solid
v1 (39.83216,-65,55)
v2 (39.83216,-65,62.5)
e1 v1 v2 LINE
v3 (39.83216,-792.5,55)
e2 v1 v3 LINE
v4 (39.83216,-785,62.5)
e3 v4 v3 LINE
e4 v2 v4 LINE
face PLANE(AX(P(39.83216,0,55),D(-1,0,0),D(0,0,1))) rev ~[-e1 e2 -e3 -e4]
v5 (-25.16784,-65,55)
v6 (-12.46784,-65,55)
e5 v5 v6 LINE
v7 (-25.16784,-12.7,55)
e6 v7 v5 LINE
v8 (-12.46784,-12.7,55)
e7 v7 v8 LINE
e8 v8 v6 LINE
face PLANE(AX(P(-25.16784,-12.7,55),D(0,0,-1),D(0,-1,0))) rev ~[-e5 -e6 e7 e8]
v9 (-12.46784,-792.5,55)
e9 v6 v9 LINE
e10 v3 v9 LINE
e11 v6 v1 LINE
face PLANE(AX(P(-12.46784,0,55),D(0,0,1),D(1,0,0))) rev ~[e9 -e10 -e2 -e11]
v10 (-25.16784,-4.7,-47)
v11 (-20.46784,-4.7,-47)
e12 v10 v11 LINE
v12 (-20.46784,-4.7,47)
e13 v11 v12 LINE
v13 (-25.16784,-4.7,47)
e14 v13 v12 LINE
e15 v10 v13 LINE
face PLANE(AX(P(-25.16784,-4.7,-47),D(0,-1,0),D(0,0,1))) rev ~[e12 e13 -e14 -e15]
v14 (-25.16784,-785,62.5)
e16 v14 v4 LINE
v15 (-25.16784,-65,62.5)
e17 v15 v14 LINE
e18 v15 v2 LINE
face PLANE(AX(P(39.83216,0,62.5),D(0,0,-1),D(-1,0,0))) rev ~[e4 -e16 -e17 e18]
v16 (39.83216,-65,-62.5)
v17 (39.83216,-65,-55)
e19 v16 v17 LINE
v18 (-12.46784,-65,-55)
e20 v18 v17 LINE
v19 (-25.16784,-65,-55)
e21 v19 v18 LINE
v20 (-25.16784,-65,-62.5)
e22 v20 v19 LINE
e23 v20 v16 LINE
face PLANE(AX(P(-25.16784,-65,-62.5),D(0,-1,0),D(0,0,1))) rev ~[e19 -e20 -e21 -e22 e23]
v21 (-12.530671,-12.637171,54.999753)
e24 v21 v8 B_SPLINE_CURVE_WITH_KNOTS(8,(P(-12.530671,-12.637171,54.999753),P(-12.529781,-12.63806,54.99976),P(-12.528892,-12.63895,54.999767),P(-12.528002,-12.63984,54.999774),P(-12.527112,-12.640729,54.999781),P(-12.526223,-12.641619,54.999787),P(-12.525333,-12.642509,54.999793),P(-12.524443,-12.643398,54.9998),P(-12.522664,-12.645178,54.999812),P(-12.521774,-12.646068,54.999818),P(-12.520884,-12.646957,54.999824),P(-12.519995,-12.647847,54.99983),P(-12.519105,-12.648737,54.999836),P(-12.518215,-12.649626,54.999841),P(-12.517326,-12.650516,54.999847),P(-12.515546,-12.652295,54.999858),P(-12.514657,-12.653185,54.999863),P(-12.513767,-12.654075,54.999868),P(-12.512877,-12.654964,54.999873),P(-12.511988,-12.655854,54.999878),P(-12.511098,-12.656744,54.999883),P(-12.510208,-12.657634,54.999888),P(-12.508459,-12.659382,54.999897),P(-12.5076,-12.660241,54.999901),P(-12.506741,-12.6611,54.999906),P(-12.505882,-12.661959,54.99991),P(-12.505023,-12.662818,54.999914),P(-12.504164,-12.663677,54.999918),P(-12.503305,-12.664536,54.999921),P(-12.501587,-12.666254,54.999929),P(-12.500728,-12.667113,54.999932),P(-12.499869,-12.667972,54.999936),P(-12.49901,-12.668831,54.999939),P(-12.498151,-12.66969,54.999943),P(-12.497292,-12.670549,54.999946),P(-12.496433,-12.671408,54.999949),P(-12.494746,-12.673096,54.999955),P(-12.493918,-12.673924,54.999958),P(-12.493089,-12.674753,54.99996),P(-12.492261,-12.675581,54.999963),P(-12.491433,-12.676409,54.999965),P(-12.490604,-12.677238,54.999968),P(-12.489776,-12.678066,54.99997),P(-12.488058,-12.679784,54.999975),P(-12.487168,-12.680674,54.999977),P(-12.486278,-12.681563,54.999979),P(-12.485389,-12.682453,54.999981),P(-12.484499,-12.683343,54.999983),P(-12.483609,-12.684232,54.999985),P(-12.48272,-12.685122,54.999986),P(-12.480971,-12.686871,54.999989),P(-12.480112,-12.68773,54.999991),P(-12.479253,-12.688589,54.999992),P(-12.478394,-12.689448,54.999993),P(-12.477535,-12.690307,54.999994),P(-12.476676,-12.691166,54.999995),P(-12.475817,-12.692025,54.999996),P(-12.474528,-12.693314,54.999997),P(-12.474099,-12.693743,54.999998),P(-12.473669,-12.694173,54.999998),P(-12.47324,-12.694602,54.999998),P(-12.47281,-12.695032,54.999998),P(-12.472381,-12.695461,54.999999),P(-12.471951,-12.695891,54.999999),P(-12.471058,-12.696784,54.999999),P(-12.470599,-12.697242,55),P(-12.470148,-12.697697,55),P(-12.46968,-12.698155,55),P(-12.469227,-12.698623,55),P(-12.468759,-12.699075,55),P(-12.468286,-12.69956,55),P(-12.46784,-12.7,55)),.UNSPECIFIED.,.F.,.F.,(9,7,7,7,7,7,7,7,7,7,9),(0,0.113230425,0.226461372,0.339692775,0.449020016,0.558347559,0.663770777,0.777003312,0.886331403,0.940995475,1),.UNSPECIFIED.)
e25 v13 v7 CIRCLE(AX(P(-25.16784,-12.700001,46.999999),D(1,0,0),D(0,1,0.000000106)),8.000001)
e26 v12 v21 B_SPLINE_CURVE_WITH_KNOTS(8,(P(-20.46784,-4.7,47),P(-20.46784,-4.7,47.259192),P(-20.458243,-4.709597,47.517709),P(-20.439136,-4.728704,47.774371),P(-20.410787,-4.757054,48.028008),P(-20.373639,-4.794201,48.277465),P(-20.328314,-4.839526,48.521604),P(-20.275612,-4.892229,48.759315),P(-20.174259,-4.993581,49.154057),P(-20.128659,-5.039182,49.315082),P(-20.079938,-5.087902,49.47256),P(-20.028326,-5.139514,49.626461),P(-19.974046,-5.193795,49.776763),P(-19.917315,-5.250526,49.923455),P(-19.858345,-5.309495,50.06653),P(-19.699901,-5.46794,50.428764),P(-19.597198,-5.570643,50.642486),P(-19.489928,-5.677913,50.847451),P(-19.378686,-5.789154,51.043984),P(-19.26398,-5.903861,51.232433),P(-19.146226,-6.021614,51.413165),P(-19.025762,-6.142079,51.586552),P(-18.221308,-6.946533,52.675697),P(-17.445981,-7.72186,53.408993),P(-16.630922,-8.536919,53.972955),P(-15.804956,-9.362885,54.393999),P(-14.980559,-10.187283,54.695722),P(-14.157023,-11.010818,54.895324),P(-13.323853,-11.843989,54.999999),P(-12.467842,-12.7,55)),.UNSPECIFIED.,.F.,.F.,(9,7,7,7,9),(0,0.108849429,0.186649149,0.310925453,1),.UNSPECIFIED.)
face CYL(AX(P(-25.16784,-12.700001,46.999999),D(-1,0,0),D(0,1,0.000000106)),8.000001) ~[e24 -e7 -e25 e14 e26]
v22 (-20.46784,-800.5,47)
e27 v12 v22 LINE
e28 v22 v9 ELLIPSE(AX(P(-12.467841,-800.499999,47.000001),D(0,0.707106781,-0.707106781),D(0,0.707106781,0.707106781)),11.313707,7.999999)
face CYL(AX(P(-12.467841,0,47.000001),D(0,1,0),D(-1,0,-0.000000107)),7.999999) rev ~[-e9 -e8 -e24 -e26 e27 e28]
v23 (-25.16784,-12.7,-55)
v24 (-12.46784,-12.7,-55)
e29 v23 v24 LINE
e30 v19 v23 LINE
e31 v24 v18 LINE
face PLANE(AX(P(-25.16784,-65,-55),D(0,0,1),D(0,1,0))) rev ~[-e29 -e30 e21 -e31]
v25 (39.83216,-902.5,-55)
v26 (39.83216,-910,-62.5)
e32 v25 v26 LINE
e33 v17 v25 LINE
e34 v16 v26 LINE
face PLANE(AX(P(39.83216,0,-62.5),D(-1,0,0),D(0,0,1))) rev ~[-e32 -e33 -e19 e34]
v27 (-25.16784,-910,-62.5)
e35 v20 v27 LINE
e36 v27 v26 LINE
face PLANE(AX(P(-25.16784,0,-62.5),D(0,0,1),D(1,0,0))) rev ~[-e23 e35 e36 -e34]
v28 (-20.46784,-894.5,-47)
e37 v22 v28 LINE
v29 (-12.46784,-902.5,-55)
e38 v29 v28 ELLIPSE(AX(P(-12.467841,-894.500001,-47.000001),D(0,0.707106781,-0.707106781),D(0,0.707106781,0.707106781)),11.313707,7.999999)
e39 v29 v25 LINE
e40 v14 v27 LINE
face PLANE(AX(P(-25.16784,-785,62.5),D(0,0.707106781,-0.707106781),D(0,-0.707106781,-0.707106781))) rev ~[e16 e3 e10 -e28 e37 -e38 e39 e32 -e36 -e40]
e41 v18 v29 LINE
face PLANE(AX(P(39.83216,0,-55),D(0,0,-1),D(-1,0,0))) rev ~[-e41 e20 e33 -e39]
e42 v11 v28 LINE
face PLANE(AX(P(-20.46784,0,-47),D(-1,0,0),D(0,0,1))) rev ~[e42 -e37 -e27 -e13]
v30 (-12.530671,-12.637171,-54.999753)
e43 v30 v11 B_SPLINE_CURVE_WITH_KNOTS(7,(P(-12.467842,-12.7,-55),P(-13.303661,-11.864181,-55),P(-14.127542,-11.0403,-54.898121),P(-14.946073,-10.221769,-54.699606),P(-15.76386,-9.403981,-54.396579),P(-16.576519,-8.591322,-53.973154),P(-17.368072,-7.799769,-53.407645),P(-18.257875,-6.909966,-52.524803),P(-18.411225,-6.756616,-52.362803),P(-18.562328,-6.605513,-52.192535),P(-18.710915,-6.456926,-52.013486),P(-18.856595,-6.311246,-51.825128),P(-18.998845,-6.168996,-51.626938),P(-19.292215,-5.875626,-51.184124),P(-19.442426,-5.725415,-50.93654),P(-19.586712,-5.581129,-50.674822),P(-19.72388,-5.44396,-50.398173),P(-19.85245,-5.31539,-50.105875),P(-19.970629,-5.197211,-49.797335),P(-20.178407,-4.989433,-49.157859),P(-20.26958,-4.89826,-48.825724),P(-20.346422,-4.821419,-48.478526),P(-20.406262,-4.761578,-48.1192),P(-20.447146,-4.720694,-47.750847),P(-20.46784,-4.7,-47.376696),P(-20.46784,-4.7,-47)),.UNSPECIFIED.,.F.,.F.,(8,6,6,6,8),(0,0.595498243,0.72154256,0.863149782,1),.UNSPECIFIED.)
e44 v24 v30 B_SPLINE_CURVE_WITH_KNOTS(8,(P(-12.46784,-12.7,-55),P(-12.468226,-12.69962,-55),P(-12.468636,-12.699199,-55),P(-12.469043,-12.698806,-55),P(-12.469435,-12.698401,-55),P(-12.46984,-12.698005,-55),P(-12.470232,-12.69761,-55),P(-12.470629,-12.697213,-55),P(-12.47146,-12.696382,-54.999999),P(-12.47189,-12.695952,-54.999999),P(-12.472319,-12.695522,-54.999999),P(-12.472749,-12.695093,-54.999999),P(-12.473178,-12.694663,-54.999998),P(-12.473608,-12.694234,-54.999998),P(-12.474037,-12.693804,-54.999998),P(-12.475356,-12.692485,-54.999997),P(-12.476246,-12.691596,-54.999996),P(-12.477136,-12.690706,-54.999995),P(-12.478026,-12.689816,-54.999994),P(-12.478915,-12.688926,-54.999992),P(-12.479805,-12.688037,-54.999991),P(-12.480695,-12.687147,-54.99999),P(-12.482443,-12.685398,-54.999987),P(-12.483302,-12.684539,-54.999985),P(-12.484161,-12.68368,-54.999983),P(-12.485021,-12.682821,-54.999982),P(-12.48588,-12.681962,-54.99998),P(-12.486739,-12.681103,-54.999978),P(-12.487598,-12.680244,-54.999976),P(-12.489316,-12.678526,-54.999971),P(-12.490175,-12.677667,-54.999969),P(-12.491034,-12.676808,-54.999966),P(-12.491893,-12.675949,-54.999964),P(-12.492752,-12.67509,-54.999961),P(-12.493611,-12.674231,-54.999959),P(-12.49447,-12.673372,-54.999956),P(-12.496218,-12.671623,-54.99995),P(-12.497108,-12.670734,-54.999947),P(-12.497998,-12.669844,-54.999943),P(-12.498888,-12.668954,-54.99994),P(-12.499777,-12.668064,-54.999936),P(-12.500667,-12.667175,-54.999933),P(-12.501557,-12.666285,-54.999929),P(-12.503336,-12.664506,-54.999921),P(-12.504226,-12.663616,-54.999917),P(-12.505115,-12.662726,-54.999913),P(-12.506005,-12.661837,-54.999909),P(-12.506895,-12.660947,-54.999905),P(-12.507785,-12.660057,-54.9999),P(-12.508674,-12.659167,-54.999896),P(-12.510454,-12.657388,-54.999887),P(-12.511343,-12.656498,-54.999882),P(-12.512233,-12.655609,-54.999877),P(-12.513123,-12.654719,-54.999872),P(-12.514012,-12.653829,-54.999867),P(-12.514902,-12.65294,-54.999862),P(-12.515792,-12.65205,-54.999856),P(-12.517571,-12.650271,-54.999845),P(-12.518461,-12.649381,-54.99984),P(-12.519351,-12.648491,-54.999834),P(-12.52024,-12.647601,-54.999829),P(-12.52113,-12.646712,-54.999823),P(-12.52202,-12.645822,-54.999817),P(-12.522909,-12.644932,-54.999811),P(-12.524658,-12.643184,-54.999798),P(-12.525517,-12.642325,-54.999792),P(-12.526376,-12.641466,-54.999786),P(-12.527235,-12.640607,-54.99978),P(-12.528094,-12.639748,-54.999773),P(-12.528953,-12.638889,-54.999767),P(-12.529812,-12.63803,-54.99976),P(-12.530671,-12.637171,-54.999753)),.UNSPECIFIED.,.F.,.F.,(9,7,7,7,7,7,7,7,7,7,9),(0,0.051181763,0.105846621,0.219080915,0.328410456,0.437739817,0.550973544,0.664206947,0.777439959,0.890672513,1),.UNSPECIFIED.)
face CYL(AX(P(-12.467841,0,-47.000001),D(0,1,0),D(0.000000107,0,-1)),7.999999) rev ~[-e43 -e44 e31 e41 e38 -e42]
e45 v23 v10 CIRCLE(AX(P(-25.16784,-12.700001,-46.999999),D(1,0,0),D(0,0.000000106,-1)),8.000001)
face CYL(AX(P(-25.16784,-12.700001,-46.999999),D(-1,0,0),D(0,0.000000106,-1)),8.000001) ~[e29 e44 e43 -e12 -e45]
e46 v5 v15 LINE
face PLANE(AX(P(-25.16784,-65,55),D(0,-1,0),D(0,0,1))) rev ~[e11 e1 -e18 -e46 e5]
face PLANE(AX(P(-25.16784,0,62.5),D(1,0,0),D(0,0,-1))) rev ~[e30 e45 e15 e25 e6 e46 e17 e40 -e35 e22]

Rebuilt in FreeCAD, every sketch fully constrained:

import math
import FreeCAD as App
import Part
import Sketcher
from FreeCAD import Vector
Q = App.Units.Quantity

doc = App.newDocument("Part")
body = doc.addObject("PartDesign::Body", "Body")

sketch1 = body.newObject("Sketcher::SketchObject", "Sketch")
sketch1.AttachmentSupport = (doc.getObject("XZ_Plane"), [""])
sketch1.MapMode = "FlatFace"
sketch1.addGeometry(Part.LineSegment(Vector(-25, 62, 0), Vector(-25, -62, 0)), False)
sketch1.addGeometry(Part.LineSegment(Vector(-25, -62, 0), Vector(40, -62, 0)), False)
sketch1.addGeometry(Part.LineSegment(Vector(40, -62, 0), Vector(40, -55, 0)), False)
sketch1.addGeometry(Part.LineSegment(Vector(40, -55, 0), Vector(-12, -55, 0)), False)
sketch1.addGeometry(Part.ArcOfCircle(Part.Circle(Vector(-12, -47, 0), Vector(0, 0, 1), 8), math.radians(180), math.radians(270)), False)
sketch1.addGeometry(Part.LineSegment(Vector(-20, -47, 0), Vector(-20, 47, 0)), False)
sketch1.addGeometry(Part.ArcOfCircle(Part.Circle(Vector(-12, 47, 0), Vector(0, 0, 1), 8), math.radians(90), math.radians(180)), False)
sketch1.addGeometry(Part.LineSegment(Vector(-12, 55, 0), Vector(40, 55, 0)), False)
sketch1.addGeometry(Part.LineSegment(Vector(40, 55, 0), Vector(40, 62, 0)), False)
sketch1.addGeometry(Part.LineSegment(Vector(40, 62, 0), Vector(-25, 62, 0)), False)
sketch1.addConstraint(Sketcher.Constraint("Coincident", 0, 2, 1, 1))
sketch1.addConstraint(Sketcher.Constraint("Coincident", 1, 2, 2, 1))
sketch1.addConstraint(Sketcher.Constraint("Coincident", 2, 2, 3, 1))
sketch1.addConstraint(Sketcher.Constraint("Tangent", 3, 2, 4, 2))
sketch1.addConstraint(Sketcher.Constraint("Tangent", 4, 1, 5, 1))
sketch1.addConstraint(Sketcher.Constraint("Tangent", 5, 2, 6, 2))
sketch1.addConstraint(Sketcher.Constraint("Tangent", 6, 1, 7, 1))
sketch1.addConstraint(Sketcher.Constraint("Coincident", 7, 2, 8, 1))
sketch1.addConstraint(Sketcher.Constraint("Coincident", 8, 2, 9, 1))
sketch1.addConstraint(Sketcher.Constraint("Coincident", 9, 2, 0, 1))
sketch1.addConstraint(Sketcher.Constraint("Vertical", 0))
sketch1.addConstraint(Sketcher.Constraint("Horizontal", 1))
sketch1.addConstraint(Sketcher.Constraint("Vertical", 2))
sketch1.addConstraint(Sketcher.Constraint("Horizontal", 3))
sketch1.addConstraint(Sketcher.Constraint("Vertical", 5))
sketch1.addConstraint(Sketcher.Constraint("Horizontal", 7))
sketch1.addConstraint(Sketcher.Constraint("Vertical", 8))
sketch1.addConstraint(Sketcher.Constraint("Horizontal", 9))
sketch1.addConstraint(Sketcher.Constraint("Equal", 4, 6))
sketch1.addConstraint(Sketcher.Constraint("Symmetric", 2, 2, 7, 2, -1))
sketch1.addConstraint(Sketcher.Constraint("Equal", 2, 8))
sketch1.addConstraint(Sketcher.Constraint("Radius", 4, Q("7.999999 mm")))
sketch1.addConstraint(Sketcher.Constraint("DistanceX", 1, 1, 1, 2, Q("65 mm")))
sketch1.addConstraint(Sketcher.Constraint("DistanceY", 0, 2, 0, 1, Q("125 mm")))
sketch1.addConstraint(Sketcher.Constraint("DistanceY", 5, 1, 5, 2, Q("94 mm")))
sketch1.addConstraint(Sketcher.Constraint("DistanceX", 3, 2, 3, 1, Q("52.3 mm")))
sketch1.addConstraint(Sketcher.Constraint("DistanceX", 4, 3, -1, 1, Q("12.467841 mm")))
pad1 = body.newObject("PartDesign::Pad", "Pad")
pad1.Profile = sketch1
pad1.Length = 910

sketch2 = body.newObject("Sketcher::SketchObject", "Sketch001")
sketch2.AttachmentSupport = (doc.getObject("YZ_Plane"), [""])
sketch2.MapMode = "FlatFace"
sketch2.AttachmentOffset = App.Placement(Vector(0, 0, -25.16784), App.Rotation())
sketch2.addGeometry(Part.LineSegment(Vector(0, 62, 0), Vector(0, -62, 0)), False)
sketch2.addGeometry(Part.LineSegment(Vector(0, -62, 0), Vector(-65, -62, 0)), False)
sketch2.addGeometry(Part.LineSegment(Vector(-65, -62, 0), Vector(-65, -55, 0)), False)
sketch2.addGeometry(Part.LineSegment(Vector(-65, -55, 0), Vector(-13, -55, 0)), False)
sketch2.addGeometry(Part.ArcOfCircle(Part.Circle(Vector(-13, -47, 0), Vector(0, 0, 1), 8), math.radians(-90), math.radians(0)), False)
sketch2.addGeometry(Part.LineSegment(Vector(-5, -47, 0), Vector(-5, 47, 0)), False)
sketch2.addGeometry(Part.ArcOfCircle(Part.Circle(Vector(-13, 47, 0), Vector(0, 0, 1), 8), math.radians(0), math.radians(90)), False)
sketch2.addGeometry(Part.LineSegment(Vector(-13, 55, 0), Vector(-65, 55, 0)), False)
sketch2.addGeometry(Part.LineSegment(Vector(-65, 55, 0), Vector(-65, 62, 0)), False)
sketch2.addGeometry(Part.LineSegment(Vector(-65, 62, 0), Vector(0, 62, 0)), False)
sketch2.addGeometry(Part.LineSegment(Vector(-785, 62, 0), Vector(-910, -62, 0)), False)
sketch2.addGeometry(Part.LineSegment(Vector(-910, -62, 0), Vector(-910, 62, 0)), False)
sketch2.addGeometry(Part.LineSegment(Vector(-910, 62, 0), Vector(-785, 62, 0)), False)
sketch2.addConstraint(Sketcher.Constraint("Coincident", 0, 2, 1, 1))
sketch2.addConstraint(Sketcher.Constraint("Coincident", 1, 2, 2, 1))
sketch2.addConstraint(Sketcher.Constraint("Coincident", 2, 2, 3, 1))
sketch2.addConstraint(Sketcher.Constraint("Tangent", 3, 2, 4, 1))
sketch2.addConstraint(Sketcher.Constraint("Tangent", 4, 2, 5, 1))
sketch2.addConstraint(Sketcher.Constraint("Tangent", 5, 2, 6, 1))
sketch2.addConstraint(Sketcher.Constraint("Tangent", 6, 2, 7, 1))
sketch2.addConstraint(Sketcher.Constraint("Coincident", 7, 2, 8, 1))
sketch2.addConstraint(Sketcher.Constraint("Coincident", 8, 2, 9, 1))
sketch2.addConstraint(Sketcher.Constraint("Coincident", 9, 2, 0, 1))
sketch2.addConstraint(Sketcher.Constraint("Coincident", 10, 2, 11, 1))
sketch2.addConstraint(Sketcher.Constraint("Coincident", 11, 2, 12, 1))
sketch2.addConstraint(Sketcher.Constraint("Coincident", 12, 2, 10, 1))
sketch2.addConstraint(Sketcher.Constraint("Vertical", 0))
sketch2.addConstraint(Sketcher.Constraint("Horizontal", 1))
sketch2.addConstraint(Sketcher.Constraint("Vertical", 2))
sketch2.addConstraint(Sketcher.Constraint("Horizontal", 3))
sketch2.addConstraint(Sketcher.Constraint("Vertical", 5))
sketch2.addConstraint(Sketcher.Constraint("Horizontal", 7))
sketch2.addConstraint(Sketcher.Constraint("Vertical", 8))
sketch2.addConstraint(Sketcher.Constraint("Horizontal", 9))
sketch2.addConstraint(Sketcher.Constraint("Vertical", 11))
sketch2.addConstraint(Sketcher.Constraint("Horizontal", 12))
sketch2.addConstraint(Sketcher.Constraint("Equal", 4, 6))
sketch2.addConstraint(Sketcher.Constraint("Symmetric", 0, 2, 9, 2, -1, 1))
sketch2.addConstraint(Sketcher.Constraint("Symmetric", 2, 2, 7, 2, -1))
sketch2.addConstraint(Sketcher.Constraint("Horizontal", 1, 2, 10, 2))
sketch2.addConstraint(Sketcher.Constraint("Horizontal", 9, 2, 11, 2))
sketch2.addConstraint(Sketcher.Constraint("Equal", 12, 0))
sketch2.addConstraint(Sketcher.Constraint("Radius", 4, Q("8.000001 mm")))
sketch2.addConstraint(Sketcher.Constraint("DistanceX", 1, 2, 1, 1, Q("65 mm")))
sketch2.addConstraint(Sketcher.Constraint("DistanceX", 12, 1, 12, 2, Q("125 mm")))
sketch2.addConstraint(Sketcher.Constraint("DistanceY", 5, 1, 5, 2, Q("94 mm")))
sketch2.addConstraint(Sketcher.Constraint("DistanceX", 3, 1, 3, 2, Q("52.3 mm")))
sketch2.addConstraint(Sketcher.Constraint("DistanceX", 10, 2, -1, 1, Q("910 mm")))
pocket1 = body.newObject("PartDesign::Pocket", "Pocket")
pocket1.Profile = sketch2
pocket1.Type = "ThroughAll"
pocket1.Reversed = True

doc.recompute()
